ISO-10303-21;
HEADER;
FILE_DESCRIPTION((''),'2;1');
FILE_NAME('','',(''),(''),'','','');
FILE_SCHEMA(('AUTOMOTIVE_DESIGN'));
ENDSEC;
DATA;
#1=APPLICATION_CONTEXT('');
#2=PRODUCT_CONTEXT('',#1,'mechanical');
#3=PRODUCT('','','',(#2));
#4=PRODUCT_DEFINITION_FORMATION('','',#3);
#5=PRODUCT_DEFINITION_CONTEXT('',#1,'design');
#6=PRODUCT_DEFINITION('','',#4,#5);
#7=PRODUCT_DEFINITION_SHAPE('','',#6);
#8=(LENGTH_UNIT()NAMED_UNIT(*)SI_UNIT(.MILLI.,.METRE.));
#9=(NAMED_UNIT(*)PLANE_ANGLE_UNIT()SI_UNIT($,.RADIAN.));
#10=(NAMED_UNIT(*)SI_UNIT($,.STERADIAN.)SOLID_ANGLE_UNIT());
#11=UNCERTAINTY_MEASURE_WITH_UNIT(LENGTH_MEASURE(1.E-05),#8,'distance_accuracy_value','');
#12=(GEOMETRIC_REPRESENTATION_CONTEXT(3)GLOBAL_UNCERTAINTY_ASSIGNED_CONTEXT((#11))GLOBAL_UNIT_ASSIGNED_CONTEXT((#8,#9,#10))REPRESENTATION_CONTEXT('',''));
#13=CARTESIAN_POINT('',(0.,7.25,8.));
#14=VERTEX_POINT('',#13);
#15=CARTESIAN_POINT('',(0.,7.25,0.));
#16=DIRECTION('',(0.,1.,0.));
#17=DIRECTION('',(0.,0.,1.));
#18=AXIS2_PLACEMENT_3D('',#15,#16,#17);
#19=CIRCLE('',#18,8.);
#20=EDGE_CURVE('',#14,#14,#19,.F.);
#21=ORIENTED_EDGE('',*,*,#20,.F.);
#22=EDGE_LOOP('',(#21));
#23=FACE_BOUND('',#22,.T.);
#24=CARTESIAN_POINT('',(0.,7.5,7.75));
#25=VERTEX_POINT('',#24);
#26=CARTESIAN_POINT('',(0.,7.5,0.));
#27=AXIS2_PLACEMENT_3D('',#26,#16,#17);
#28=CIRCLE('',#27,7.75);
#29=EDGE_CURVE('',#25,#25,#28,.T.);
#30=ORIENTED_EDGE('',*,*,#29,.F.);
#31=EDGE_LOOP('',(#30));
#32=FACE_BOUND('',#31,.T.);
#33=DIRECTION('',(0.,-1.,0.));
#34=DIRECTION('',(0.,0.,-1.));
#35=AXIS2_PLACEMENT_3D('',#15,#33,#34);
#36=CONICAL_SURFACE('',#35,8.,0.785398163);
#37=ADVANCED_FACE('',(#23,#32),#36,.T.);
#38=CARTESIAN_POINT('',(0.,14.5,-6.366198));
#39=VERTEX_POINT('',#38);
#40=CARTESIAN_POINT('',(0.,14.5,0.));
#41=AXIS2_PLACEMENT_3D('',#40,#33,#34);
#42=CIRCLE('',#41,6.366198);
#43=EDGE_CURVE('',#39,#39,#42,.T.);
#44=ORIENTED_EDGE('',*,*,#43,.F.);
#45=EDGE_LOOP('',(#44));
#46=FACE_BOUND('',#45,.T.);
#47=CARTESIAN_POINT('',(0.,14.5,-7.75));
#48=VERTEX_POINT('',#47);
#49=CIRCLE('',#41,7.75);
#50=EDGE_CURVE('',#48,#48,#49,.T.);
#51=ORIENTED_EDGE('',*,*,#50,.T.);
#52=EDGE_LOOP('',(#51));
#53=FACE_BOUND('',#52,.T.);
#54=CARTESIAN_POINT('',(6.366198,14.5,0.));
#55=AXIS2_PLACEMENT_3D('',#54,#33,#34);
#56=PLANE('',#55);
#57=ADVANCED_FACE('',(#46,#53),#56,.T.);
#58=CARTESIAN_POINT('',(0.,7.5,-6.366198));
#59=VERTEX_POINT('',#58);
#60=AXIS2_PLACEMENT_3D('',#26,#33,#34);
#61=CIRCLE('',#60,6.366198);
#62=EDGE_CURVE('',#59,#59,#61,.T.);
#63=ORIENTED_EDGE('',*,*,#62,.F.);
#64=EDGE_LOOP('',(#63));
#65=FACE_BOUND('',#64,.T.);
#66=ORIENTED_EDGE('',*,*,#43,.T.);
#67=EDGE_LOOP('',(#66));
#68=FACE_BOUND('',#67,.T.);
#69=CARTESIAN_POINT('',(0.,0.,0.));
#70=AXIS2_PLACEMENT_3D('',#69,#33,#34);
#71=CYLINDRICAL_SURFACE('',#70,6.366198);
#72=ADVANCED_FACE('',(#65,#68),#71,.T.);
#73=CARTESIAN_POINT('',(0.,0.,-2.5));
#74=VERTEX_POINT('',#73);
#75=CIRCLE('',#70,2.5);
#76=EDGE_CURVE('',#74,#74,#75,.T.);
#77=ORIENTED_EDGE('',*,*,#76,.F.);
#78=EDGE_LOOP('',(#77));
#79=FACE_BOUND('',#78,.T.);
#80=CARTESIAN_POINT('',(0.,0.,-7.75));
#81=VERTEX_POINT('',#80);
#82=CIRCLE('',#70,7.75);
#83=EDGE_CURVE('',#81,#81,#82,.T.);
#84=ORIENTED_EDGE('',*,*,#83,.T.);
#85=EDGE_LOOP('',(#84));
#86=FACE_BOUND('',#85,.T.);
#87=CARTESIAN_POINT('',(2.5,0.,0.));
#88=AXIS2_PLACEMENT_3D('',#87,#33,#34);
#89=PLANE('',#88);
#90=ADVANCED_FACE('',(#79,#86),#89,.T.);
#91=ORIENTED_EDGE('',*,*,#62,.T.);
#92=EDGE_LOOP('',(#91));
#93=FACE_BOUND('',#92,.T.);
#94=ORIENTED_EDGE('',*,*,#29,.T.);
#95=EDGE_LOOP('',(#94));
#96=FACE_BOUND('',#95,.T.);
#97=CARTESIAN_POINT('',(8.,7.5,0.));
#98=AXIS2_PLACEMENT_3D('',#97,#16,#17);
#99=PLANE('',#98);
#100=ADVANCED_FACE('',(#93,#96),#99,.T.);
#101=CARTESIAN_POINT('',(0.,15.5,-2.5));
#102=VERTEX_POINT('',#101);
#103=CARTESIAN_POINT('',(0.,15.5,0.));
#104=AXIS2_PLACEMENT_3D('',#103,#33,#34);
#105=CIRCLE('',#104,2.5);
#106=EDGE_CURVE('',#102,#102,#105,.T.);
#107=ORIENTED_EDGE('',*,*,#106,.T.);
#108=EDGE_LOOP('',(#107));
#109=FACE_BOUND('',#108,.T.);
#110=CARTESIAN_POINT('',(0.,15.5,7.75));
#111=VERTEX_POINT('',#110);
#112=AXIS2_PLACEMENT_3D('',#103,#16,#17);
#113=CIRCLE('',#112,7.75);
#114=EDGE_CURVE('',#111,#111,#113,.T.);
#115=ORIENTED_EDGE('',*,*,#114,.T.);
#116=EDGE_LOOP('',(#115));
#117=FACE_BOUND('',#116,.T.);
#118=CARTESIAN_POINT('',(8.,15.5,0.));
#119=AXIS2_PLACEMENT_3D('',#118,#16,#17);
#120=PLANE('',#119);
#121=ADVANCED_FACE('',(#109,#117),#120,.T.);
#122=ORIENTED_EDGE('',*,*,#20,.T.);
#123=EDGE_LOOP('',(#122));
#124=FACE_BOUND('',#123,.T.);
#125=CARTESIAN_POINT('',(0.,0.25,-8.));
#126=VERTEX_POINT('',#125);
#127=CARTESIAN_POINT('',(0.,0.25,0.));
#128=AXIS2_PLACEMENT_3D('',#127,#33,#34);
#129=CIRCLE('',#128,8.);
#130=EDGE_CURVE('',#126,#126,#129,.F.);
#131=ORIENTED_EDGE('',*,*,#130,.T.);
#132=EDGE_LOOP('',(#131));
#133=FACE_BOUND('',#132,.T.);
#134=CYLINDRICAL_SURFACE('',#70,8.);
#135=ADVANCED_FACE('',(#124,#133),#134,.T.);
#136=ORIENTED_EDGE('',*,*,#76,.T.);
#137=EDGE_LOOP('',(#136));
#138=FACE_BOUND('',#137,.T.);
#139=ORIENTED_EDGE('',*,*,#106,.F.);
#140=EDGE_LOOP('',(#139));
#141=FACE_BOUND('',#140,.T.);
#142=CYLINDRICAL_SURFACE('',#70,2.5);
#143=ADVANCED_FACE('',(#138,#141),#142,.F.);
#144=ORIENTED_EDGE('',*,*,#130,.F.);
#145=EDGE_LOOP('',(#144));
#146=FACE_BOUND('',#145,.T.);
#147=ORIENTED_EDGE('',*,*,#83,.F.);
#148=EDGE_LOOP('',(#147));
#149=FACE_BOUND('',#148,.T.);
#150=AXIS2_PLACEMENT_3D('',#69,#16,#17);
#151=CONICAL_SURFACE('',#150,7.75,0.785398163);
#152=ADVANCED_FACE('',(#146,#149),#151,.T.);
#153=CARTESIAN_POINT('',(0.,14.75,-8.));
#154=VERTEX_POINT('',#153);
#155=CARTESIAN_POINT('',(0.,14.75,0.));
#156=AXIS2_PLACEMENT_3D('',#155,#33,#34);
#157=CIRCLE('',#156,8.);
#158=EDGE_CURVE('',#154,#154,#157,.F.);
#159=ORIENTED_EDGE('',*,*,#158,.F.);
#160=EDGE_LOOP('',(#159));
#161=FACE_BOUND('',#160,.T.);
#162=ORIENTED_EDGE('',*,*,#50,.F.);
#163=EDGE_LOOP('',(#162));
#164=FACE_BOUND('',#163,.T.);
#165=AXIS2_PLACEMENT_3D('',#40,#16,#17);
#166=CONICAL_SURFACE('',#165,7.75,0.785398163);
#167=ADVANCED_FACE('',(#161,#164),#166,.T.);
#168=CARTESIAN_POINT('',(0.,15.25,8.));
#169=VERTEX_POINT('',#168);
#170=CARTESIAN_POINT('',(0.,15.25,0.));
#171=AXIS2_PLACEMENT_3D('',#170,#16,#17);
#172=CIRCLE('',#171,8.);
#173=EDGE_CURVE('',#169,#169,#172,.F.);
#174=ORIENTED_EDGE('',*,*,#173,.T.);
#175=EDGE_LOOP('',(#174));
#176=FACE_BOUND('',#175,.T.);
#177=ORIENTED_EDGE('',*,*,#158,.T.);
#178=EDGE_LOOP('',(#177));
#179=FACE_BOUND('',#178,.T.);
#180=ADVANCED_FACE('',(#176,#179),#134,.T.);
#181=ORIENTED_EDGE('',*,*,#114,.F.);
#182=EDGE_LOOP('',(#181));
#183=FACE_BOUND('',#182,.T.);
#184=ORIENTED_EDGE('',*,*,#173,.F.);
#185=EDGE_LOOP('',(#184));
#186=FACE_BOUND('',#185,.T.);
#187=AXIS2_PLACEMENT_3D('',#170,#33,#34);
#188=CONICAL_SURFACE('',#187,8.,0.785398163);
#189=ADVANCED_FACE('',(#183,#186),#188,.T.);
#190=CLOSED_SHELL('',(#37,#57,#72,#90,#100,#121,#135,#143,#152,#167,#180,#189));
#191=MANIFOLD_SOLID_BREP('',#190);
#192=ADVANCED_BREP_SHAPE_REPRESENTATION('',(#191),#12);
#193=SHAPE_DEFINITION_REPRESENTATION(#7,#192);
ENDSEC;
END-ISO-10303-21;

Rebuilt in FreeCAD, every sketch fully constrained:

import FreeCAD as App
import Part
import Sketcher
from FreeCAD import Vector


def edges_at(feature, points):
    """Names of the edges that pass closest to the given points."""
    edges = feature.Shape.Edges
    near = lambda p: min(range(len(edges)), key=lambda i: edges[i].distToShape(Part.Vertex(*p))[0])
    return sorted({f"Edge{near(p) + 1}" for p in points})

doc = App.newDocument("Part")
params = doc.addObject("Spreadsheet::Sheet", "Params")
for row, (alias, value) in enumerate([
    ("sketch1_height", "7 mm"),
    ("sketch1_height2", "1 mm"),
    ("sketch1_width", "5.5 mm"),
    ("sketch1_height3", "7.5 mm"),
    ("revolution_angle", "360 deg"),
    ("chamfer_size", "0.25 mm"),
], start=1):
    params.set(f"A{row}", alias)
    params.set(f"B{row}", "=" + value)
    params.setAlias(f"B{row}", alias)

body = doc.addObject("PartDesign::Body", "Body")

sketch1 = doc.addObject("Sketcher::SketchObject", "Sketch")
body.addObject(sketch1)
sketch1.AttachmentSupport = (doc.XY_Plane, [""])
sketch1.MapMode = "FlatFace"
sketch1.addGeometry([
    Part.LineSegment(Vector(2.5, 0, 0), Vector(8, 0, 0)),
    Part.LineSegment(Vector(8, 0, 0), Vector(8, 7.5, 0)),
    Part.LineSegment(Vector(8, 7.5, 0), Vector(6.4, 7.5, 0)),
    Part.LineSegment(Vector(6.4, 7.5, 0), Vector(6.4, 14.5, 0)),
    Part.LineSegment(Vector(6.4, 14.5, 0), Vector(8, 14.5, 0)),
    Part.LineSegment(Vector(8, 14.5, 0), Vector(8, 15.5, 0)),
    Part.LineSegment(Vector(8, 15.5, 0), Vector(2.5, 15.5, 0)),
    Part.LineSegment(Vector(2.5, 15.5, 0), Vector(2.5, 0, 0)),
], False)
sketch1.addConstraint([
    Sketcher.Constraint("Coincident", 0, 2, 1, 1),
    Sketcher.Constraint("Coincident", 1, 2, 2, 1),
    Sketcher.Constraint("Coincident", 2, 2, 3, 1),
    Sketcher.Constraint("Coincident", 3, 2, 4, 1),
    Sketcher.Constraint("Coincident", 4, 2, 5, 1),
    Sketcher.Constraint("Coincident", 5, 2, 6, 1),
    Sketcher.Constraint("Coincident", 6, 2, 7, 1),
    Sketcher.Constraint("Coincident", 7, 2, 0, 1),
    Sketcher.Constraint("Horizontal", 0),
    Sketcher.Constraint("Vertical", 1),
    Sketcher.Constraint("Horizontal", 2),
    Sketcher.Constraint("Vertical", 3),
    Sketcher.Constraint("Horizontal", 4),
    Sketcher.Constraint("Vertical", 5),
    Sketcher.Constraint("Horizontal", 6),
    Sketcher.Constraint("Vertical", 7),
    Sketcher.Constraint("PointOnObject", 0, 2, -1),
    Sketcher.Constraint("Vertical", 1, 2, 4, 2),
    Sketcher.Constraint("DistanceY", 3, 1, 3, 2, 7.0),
    Sketcher.Constraint("DistanceY", 5, 1, 5, 2, 1.0),
    Sketcher.Constraint("DistanceX", 0, 1, 0, 2, 5.5),
    Sketcher.Constraint("DistanceY", 1, 1, 1, 2, 7.5),
    Sketcher.Constraint("DistanceX", -1, 1, 0, 2, 8.0),
    Sketcher.Constraint("DistanceX", 2, 2, 2, 1, 1.633802),
])
sketch1.setExpression("Constraints[18]", "Params.sketch1_height")
sketch1.setExpression("Constraints[19]", "Params.sketch1_height2")
sketch1.setExpression("Constraints[20]", "Params.sketch1_width")
sketch1.setExpression("Constraints[21]", "Params.sketch1_height3")
revolution = doc.addObject("PartDesign::Revolution", "Revolution")
body.addObject(revolution)
revolution.Profile = sketch1
revolution.ReferenceAxis = (sketch1, ["V_Axis"])
revolution.setExpression("Angle", "Params.revolution_angle")
doc.recompute()

chamfer = doc.addObject("PartDesign::Chamfer", "Chamfer")
body.addObject(chamfer)
chamfer.Base = (revolution, edges_at(revolution, [
    (-8, 15.5, 0),
    (-8, 14.5, 0),
    (-8, 7.5, 0),
    (-8, 0, 0),
]))
chamfer.setExpression("Size", "Params.chamfer_size")

doc.recompute()
